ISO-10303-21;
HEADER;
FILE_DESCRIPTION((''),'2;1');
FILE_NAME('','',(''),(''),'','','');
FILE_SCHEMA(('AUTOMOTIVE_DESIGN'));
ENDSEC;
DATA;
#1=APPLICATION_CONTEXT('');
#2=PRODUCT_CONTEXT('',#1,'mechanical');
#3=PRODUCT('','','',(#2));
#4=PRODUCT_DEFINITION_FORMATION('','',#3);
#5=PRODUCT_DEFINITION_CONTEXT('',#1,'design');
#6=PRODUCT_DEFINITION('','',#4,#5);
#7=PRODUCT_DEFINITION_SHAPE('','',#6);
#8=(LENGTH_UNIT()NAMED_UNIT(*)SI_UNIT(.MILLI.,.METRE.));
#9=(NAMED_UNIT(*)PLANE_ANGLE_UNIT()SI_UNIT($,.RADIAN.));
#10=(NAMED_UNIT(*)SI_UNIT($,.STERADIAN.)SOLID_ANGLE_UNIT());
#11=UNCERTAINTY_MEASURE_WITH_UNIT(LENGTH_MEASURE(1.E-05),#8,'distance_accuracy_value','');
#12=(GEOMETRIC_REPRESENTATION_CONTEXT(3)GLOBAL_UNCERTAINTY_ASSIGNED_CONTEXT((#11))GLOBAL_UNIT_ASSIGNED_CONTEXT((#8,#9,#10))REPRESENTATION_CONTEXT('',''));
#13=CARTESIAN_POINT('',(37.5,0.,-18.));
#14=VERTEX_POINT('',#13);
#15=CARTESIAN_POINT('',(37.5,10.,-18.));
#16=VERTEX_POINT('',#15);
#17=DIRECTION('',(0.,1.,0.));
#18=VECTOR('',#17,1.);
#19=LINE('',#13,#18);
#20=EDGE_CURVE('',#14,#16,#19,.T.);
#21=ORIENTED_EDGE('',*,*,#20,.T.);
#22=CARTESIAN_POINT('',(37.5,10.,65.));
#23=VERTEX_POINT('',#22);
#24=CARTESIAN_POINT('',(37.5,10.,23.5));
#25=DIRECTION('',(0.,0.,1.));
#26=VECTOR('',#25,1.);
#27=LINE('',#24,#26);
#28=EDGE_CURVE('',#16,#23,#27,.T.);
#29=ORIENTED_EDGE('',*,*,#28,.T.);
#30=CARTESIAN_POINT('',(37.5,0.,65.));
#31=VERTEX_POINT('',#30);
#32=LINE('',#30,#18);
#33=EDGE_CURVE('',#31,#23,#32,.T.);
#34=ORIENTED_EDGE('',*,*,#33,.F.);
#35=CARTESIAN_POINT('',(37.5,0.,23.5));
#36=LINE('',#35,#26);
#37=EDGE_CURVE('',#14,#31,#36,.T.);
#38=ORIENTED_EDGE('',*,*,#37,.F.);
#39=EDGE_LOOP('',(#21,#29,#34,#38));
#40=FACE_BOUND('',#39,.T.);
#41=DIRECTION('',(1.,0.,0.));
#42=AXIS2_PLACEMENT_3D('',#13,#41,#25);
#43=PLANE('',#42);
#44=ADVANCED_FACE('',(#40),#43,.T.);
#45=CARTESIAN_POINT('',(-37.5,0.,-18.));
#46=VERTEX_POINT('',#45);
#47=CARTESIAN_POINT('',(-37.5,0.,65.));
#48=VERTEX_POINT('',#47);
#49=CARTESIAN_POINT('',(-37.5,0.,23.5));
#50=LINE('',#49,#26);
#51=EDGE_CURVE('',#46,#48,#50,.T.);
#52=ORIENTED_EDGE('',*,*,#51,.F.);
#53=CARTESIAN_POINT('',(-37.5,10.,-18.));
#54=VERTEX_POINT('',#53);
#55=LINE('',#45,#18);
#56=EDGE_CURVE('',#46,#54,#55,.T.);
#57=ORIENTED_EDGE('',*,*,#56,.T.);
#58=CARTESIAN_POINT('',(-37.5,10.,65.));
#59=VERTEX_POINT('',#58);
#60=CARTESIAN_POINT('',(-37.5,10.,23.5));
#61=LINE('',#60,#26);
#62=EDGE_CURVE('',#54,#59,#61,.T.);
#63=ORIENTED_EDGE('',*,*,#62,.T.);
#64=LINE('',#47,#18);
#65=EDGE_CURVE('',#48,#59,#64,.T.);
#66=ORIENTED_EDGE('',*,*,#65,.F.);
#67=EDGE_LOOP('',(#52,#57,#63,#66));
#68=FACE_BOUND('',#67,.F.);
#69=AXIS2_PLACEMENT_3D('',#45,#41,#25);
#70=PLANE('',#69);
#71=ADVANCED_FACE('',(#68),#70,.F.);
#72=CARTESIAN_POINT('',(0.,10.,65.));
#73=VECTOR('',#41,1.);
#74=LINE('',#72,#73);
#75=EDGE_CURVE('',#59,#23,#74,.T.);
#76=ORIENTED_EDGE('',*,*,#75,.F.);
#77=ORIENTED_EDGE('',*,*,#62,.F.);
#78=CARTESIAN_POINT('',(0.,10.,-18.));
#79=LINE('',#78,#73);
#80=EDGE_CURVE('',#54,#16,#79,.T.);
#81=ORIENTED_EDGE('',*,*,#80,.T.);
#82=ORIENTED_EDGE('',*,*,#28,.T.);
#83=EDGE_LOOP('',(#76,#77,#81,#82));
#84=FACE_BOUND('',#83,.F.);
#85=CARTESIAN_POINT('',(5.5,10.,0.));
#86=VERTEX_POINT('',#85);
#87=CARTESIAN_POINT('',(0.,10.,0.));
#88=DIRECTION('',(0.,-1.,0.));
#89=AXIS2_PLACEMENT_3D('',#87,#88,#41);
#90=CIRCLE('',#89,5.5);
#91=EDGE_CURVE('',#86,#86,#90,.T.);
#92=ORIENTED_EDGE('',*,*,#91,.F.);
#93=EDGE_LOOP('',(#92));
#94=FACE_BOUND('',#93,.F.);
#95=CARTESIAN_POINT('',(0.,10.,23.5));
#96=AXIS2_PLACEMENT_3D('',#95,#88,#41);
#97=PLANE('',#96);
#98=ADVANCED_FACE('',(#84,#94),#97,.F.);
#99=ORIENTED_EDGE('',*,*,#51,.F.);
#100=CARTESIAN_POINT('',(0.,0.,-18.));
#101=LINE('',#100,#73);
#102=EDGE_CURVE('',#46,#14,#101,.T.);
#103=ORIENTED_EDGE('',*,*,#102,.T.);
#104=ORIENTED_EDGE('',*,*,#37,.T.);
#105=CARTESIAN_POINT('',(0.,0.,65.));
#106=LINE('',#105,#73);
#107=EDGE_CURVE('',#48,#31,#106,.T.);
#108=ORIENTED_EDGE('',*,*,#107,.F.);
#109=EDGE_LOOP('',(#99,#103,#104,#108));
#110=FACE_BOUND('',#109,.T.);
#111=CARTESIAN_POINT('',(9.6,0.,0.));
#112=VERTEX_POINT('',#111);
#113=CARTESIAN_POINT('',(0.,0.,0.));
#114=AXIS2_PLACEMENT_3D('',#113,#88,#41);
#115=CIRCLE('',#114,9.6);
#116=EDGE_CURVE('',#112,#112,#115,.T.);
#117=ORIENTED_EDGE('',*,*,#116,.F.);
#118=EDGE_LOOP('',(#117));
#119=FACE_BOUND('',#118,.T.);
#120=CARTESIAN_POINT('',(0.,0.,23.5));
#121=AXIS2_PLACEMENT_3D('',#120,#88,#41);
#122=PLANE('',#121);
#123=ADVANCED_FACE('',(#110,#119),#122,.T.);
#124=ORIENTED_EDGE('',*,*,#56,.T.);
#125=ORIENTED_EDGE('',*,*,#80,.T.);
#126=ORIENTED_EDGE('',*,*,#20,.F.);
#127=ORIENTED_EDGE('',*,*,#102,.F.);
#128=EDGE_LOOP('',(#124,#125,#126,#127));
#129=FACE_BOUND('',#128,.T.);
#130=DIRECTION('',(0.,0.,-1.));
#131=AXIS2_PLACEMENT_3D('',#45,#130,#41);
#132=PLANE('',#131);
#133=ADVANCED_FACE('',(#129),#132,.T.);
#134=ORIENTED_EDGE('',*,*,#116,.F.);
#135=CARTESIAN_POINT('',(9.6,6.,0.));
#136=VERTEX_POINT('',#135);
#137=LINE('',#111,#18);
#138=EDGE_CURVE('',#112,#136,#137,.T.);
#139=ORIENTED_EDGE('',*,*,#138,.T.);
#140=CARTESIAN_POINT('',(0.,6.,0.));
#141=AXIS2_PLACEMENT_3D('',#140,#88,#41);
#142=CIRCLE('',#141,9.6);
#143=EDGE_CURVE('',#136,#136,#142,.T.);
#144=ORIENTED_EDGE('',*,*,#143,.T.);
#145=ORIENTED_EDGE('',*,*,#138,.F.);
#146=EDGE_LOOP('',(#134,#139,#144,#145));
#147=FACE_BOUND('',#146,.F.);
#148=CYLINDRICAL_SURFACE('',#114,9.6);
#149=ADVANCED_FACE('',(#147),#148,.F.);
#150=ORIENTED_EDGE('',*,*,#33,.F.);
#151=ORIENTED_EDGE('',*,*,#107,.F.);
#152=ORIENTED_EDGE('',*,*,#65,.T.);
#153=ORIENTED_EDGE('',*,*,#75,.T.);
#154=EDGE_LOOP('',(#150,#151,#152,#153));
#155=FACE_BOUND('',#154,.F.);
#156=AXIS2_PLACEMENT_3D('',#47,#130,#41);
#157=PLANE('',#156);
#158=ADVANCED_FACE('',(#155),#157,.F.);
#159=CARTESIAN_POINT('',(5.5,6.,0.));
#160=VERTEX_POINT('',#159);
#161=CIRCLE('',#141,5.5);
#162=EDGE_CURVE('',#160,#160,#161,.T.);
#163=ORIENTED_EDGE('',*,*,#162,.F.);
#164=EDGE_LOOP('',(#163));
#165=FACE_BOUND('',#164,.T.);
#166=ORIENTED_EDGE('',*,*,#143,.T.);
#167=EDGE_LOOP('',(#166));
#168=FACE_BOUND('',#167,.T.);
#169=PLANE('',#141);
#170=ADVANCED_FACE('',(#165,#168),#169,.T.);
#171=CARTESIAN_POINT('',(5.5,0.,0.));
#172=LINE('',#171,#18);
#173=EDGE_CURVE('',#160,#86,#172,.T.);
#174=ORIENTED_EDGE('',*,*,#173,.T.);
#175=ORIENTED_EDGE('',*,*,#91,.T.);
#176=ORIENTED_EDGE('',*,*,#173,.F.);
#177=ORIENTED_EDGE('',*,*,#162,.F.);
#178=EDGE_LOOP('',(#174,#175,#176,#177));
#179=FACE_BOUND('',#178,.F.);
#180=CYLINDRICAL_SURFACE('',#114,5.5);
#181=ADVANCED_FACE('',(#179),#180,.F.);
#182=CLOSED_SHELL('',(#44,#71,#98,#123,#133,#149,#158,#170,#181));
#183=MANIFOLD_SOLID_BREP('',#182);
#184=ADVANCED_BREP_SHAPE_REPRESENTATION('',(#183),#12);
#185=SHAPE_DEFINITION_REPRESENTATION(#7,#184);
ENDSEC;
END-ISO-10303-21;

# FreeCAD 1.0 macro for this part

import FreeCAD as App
import Part
import Sketcher

V = App.Vector


def add_polygon(sketch, points):
    """Adds a closed chain of lines whose ends are joined by coincident constraints."""
    first, n = sketch.GeometryCount, len(points)
    for a, b in zip(points, points[1:] + points[:1]):
        sketch.addGeometry(Part.LineSegment(App.Vector(*a, 0), App.Vector(*b, 0)), False)
    for i in range(n):
        sketch.addConstraint(Sketcher.Constraint("Coincident", first + i, 2, first + (i + 1) % n, 1))

doc = App.newDocument("Part")
body = doc.addObject("PartDesign::Body", "Body")

# Sketch on XY plane
sketch1 = body.newObject("Sketcher::SketchObject", "Sketch")
sketch1.AttachmentSupport = (doc.getObject("XY_Plane"), [""])
sketch1.MapMode = "FlatFace"
sketch1.addGeometry(Part.Circle(V(0, 0, 0), V(0, 0, 1), 9.6), False)
sketch1.addConstraint([
    Sketcher.Constraint("Coincident", 0, 3, -1, 1),
    Sketcher.Constraint("Diameter", 0, 19.2),
])
pad1 = body.newObject("PartDesign::Pad", "Pad")
pad1.Profile = sketch1
pad1.Length = 6
pad1.Reversed = True
body2 = doc.addObject("PartDesign::Body", "Body001")
doc.recompute()

body.Placement = App.Placement(V(0, 0, 0), App.Rotation(V(1, 0, 0), 90))
boolean = body2.newObject("PartDesign::Boolean", "Boolean")
boolean.Type = "Fuse"
boolean.addObjects([body])
body3 = doc.addObject("PartDesign::Body", "Body002")

# Sketch on XY plane
sketch2 = body3.newObject("Sketcher::SketchObject", "Sketch001")
sketch2.AttachmentSupport = (doc.getObject("XY_Plane002"), [""])
sketch2.MapMode = "FlatFace"
add_polygon(sketch2, [(-37.5, 65), (-37.5, -18), (37.5, -18), (37.5, 65)])  # lines 0-3
sketch2.addGeometry(Part.Circle(V(0, 0, 0), V(0, 0, 1), 5.5), False)  # 4
sketch2.addConstraint([
    Sketcher.Constraint("Vertical", 0),
    Sketcher.Constraint("Horizontal", 1),
    Sketcher.Constraint("Vertical", 2),
    Sketcher.Constraint("Horizontal", 3),
    Sketcher.Constraint("Coincident", 4, 3, -1, 1),
    Sketcher.Constraint("Diameter", 4, 11.0),
    Sketcher.Constraint("DistanceX", 1, 1, 1, 2, 75.0),
    Sketcher.Constraint("DistanceY", 0, 2, 0, 1, 83.0),
    Sketcher.Constraint("DistanceY", 0, 2, -1, 1, 18.0),
    Sketcher.Constraint("DistanceX", 0, 2, -1, 1, 37.5),
])
pad2 = body3.newObject("PartDesign::Pad", "Pad001")
pad2.Profile = sketch2
pad2.Length = 10
pad2.Reversed = True
body4 = doc.addObject("PartDesign::Body", "Body003")
doc.recompute()

body3.Placement = App.Placement(V(0, 0, 0), App.Rotation(V(1, 0, 0), 90))
boolean2 = body4.newObject("PartDesign::Boolean", "Boolean001")
boolean2.Type = "Fuse"
boolean2.addObjects([body3])
doc.recompute()

boolean3 = body4.newObject("PartDesign::Boolean", "Boolean002")
boolean3.Type = "Cut"
boolean3.addObjects([body2])

doc.recompute()
